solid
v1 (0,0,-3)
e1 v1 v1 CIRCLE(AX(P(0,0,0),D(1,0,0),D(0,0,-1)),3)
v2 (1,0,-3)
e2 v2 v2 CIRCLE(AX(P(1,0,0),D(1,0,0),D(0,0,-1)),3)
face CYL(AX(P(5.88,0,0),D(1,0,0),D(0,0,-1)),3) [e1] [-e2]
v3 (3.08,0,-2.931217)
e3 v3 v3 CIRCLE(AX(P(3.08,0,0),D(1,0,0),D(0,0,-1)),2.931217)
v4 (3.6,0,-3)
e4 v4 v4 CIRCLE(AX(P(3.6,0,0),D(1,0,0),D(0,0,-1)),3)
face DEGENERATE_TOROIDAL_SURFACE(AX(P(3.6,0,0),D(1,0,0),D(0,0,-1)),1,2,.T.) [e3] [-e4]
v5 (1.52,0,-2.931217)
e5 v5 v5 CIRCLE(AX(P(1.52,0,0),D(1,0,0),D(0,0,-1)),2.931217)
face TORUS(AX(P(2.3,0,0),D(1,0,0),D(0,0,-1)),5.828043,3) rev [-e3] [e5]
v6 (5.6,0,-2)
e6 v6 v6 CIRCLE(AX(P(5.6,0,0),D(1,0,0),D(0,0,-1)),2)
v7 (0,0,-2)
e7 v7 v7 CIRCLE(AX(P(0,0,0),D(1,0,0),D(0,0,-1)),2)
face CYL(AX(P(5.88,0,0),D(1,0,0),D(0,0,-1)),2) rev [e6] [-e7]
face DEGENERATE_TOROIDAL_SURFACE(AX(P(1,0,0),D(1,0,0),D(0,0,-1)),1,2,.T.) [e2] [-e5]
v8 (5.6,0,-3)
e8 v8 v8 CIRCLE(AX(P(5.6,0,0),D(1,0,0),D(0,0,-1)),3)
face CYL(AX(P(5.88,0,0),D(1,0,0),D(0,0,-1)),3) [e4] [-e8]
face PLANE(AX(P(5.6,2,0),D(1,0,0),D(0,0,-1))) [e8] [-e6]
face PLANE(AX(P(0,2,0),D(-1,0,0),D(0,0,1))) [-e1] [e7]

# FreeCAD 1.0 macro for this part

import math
import FreeCAD as App
import Part
import Sketcher

doc = App.newDocument("Part")
params = doc.addObject("Spreadsheet::Sheet", "Params")
for row, (alias, value) in enumerate([
    ("sketch1_radius", "2 mm"),
    ("sketch1_radius2", "3 mm"),
    ("sketch1_width", "2 mm"),
    ("sketch1_width2", "1 mm"),
    ("sketch1_width3", "5.6 mm"),
    ("revolution_angle", "360 deg"),
], start=1):
    params.set(f"A{row}", alias)
    params.set(f"B{row}", "=" + value)
    params.setAlias(f"B{row}", alias)

body = doc.addObject("PartDesign::Body", "Body")

sketch1 = doc.addObject("Sketcher::SketchObject", "Sketch")
body.addObject(sketch1)
sketch1.AttachmentSupport = (doc.XY_Plane, [""])
sketch1.MapMode = "FlatFace"
sketch1.addGeometry([
    Part.LineSegment(App.Vector(0, 2, 0), App.Vector(5.6, 2, 0)),
    Part.LineSegment(App.Vector(5.6, 2, 0), App.Vector(5.6, 3, 0)),
    Part.LineSegment(App.Vector(5.6, 3, 0), App.Vector(3.6, 3, 0)),
    Part.ArcOfCircle(Part.Circle(App.Vector(3.6, 1, 0), App.Vector(0, 0, 1), 2), math.radians(90), math.radians(105.07)),
    Part.ArcOfCircle(Part.Circle(App.Vector(2.3, 5.8, 0), App.Vector(0, 0, 1), 3), math.radians(-105), math.radians(-75)),
    Part.ArcOfCircle(Part.Circle(App.Vector(1, 1, 0), App.Vector(0, 0, 1), 2), math.radians(74.93), math.radians(90)),
    Part.LineSegment(App.Vector(1, 3, 0), App.Vector(0, 3, 0)),
    Part.LineSegment(App.Vector(0, 3, 0), App.Vector(0, 2, 0)),
], False)
sketch1.addConstraint([
    Sketcher.Constraint("Coincident", 0, 2, 1, 1),
    Sketcher.Constraint("Coincident", 1, 2, 2, 1),
    Sketcher.Constraint("Tangent", 2, 2, 3, 1),
    Sketcher.Constraint("Tangent", 3, 2, 4, 2),
    Sketcher.Constraint("Tangent", 4, 1, 5, 1),
    Sketcher.Constraint("Tangent", 5, 2, 6, 1),
    Sketcher.Constraint("Coincident", 6, 2, 7, 1),
    Sketcher.Constraint("Coincident", 7, 2, 0, 1),
    Sketcher.Constraint("Horizontal", 0),
    Sketcher.Constraint("Vertical", 1),
    Sketcher.Constraint("Horizontal", 2),
    Sketcher.Constraint("Horizontal", 6),
    Sketcher.Constraint("Vertical", 7),
    Sketcher.Constraint("Equal", 3, 5),
    Sketcher.Constraint("PointOnObject", 6, 2, -2),
    Sketcher.Constraint("Horizontal", 3, 3, 5, 3),
    Sketcher.Constraint("Equal", 6, 1),
    Sketcher.Constraint("Radius", 3, 2.0),
    Sketcher.Constraint("Radius", 4, 3.0),
    Sketcher.Constraint("DistanceX", 2, 2, 2, 1, 2.0),
    Sketcher.Constraint("DistanceX", 6, 2, 6, 1, 1.0),
    Sketcher.Constraint("DistanceX", 0, 1, 0, 2, 5.6),
    Sketcher.Constraint("DistanceY", -1, 1, 3, 3, 1.0),
])
sketch1.setExpression("Constraints[17]", "Params.sketch1_radius")
sketch1.setExpression("Constraints[18]", "Params.sketch1_radius2")
sketch1.setExpression("Constraints[19]", "Params.sketch1_width")
sketch1.setExpression("Constraints[20]", "Params.sketch1_width2")
sketch1.setExpression("Constraints[21]", "Params.sketch1_width3")
revolution = doc.addObject("PartDesign::Revolution", "Revolution")
body.addObject(revolution)
revolution.Profile = sketch1
revolution.ReferenceAxis = (sketch1, ["H_Axis"])
revolution.setExpression("Angle", "Params.revolution_angle")

doc.recompute()
